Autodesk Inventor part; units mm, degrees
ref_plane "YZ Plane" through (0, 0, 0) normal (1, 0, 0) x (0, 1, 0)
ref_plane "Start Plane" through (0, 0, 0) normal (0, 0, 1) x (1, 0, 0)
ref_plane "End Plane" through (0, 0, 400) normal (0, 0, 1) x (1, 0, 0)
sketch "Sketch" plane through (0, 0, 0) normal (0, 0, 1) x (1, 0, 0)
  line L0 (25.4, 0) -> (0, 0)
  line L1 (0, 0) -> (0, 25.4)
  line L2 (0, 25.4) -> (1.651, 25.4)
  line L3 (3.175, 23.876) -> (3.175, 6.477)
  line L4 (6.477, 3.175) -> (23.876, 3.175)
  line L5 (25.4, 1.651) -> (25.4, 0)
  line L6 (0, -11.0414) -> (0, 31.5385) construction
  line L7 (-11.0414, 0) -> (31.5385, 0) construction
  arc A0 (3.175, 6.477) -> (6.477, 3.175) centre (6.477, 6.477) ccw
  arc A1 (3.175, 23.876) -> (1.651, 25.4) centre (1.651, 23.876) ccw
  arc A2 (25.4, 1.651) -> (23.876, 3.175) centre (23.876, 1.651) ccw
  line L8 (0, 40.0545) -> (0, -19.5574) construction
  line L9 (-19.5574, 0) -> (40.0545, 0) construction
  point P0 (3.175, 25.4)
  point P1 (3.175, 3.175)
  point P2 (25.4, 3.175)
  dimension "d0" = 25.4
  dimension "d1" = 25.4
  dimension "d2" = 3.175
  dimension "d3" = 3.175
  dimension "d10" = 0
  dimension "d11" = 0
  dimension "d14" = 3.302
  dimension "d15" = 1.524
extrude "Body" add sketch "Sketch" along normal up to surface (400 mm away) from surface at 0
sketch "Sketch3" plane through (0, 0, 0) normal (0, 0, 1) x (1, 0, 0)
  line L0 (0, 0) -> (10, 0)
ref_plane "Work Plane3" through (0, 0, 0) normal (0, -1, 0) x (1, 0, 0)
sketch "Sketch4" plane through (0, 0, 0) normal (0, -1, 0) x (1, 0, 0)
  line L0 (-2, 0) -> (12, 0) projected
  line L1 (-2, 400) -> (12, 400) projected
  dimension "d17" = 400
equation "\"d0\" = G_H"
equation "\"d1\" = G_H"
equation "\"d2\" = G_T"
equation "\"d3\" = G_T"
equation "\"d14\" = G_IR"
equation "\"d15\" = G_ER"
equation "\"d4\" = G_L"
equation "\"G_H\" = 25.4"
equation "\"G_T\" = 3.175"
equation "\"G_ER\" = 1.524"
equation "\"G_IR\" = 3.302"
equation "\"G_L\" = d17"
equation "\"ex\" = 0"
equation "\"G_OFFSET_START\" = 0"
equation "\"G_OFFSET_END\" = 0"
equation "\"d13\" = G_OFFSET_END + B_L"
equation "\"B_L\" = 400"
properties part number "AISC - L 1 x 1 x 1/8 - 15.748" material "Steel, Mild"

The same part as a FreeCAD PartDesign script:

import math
import FreeCAD as App
import Part
import Sketcher

V = App.Vector
Q = App.Units.Quantity

doc = App.newDocument("Part")
body = doc.addObject("PartDesign::Body", "Body")

sketch1 = body.newObject("Sketcher::SketchObject", "Sketch")
sketch1.AttachmentSupport = (doc.getObject("XY_Plane"), [""])
sketch1.MapMode = "FlatFace"
sketch1.addGeometry([
    Part.LineSegment(V(0, 0, 0), V(25.4, 0, 0)),
    Part.LineSegment(V(25.4, 0, 0), V(25.4, 1.651, 0)),
    Part.ArcOfCircle(Part.Circle(V(23.876, 1.651, 0), V(0, 0, 1), 1.524), math.radians(0), math.radians(90)),
    Part.LineSegment(V(23.876, 3.175, 0), V(6.477, 3.175, 0)),
    Part.ArcOfCircle(Part.Circle(V(6.477, 6.477, 0), V(0, 0, 1), 3.302), math.radians(180), math.radians(270)),
    Part.LineSegment(V(3.175, 6.477, 0), V(3.175, 23.876, 0)),
    Part.ArcOfCircle(Part.Circle(V(1.651, 23.876, 0), V(0, 0, 1), 1.524), math.radians(0), math.radians(90)),
    Part.LineSegment(V(1.651, 25.4, 0), V(0, 25.4, 0)),
    Part.LineSegment(V(0, 25.4, 0), V(0, 0, 0)),
], False)
sketch1.addConstraint([
    Sketcher.Constraint("Coincident", 0, 2, 1, 1),
    Sketcher.Constraint("Tangent", 1, 2, 2, 1),
    Sketcher.Constraint("Tangent", 2, 2, 3, 1),
    Sketcher.Constraint("Tangent", 3, 2, 4, 2),
    Sketcher.Constraint("Tangent", 4, 1, 5, 1),
    Sketcher.Constraint("Tangent", 5, 2, 6, 1),
    Sketcher.Constraint("Tangent", 6, 2, 7, 1),
    Sketcher.Constraint("Coincident", 7, 2, 8, 1),
    Sketcher.Constraint("Coincident", 8, 2, 0, 1),
    Sketcher.Constraint("Horizontal", 0),
    Sketcher.Constraint("Vertical", 1),
    Sketcher.Constraint("Horizontal", 3),
    Sketcher.Constraint("Vertical", 5),
    Sketcher.Constraint("Horizontal", 7),
    Sketcher.Constraint("Vertical", 8),
    Sketcher.Constraint("Coincident", 8, 2, -1, 1),
    Sketcher.Constraint("Equal", 2, 6),
    Sketcher.Constraint("Equal", 7, 1),
    Sketcher.Constraint("Equal", 3, 5),
    Sketcher.Constraint("DistanceX", 0, 1, 0, 2, Q("1 in")),
    Sketcher.Constraint("Radius", 2, Q("0.06 in")),
    Sketcher.Constraint("Radius", 4, Q("0.13 in")),
    Sketcher.Constraint("DistanceY", -1, 1, 2, 2, Q("0.125 in")),
])
pad1 = body.newObject("PartDesign::Pad", "Pad")
pad1.Profile = sketch1
pad1.Length = 400

doc.recompute()
